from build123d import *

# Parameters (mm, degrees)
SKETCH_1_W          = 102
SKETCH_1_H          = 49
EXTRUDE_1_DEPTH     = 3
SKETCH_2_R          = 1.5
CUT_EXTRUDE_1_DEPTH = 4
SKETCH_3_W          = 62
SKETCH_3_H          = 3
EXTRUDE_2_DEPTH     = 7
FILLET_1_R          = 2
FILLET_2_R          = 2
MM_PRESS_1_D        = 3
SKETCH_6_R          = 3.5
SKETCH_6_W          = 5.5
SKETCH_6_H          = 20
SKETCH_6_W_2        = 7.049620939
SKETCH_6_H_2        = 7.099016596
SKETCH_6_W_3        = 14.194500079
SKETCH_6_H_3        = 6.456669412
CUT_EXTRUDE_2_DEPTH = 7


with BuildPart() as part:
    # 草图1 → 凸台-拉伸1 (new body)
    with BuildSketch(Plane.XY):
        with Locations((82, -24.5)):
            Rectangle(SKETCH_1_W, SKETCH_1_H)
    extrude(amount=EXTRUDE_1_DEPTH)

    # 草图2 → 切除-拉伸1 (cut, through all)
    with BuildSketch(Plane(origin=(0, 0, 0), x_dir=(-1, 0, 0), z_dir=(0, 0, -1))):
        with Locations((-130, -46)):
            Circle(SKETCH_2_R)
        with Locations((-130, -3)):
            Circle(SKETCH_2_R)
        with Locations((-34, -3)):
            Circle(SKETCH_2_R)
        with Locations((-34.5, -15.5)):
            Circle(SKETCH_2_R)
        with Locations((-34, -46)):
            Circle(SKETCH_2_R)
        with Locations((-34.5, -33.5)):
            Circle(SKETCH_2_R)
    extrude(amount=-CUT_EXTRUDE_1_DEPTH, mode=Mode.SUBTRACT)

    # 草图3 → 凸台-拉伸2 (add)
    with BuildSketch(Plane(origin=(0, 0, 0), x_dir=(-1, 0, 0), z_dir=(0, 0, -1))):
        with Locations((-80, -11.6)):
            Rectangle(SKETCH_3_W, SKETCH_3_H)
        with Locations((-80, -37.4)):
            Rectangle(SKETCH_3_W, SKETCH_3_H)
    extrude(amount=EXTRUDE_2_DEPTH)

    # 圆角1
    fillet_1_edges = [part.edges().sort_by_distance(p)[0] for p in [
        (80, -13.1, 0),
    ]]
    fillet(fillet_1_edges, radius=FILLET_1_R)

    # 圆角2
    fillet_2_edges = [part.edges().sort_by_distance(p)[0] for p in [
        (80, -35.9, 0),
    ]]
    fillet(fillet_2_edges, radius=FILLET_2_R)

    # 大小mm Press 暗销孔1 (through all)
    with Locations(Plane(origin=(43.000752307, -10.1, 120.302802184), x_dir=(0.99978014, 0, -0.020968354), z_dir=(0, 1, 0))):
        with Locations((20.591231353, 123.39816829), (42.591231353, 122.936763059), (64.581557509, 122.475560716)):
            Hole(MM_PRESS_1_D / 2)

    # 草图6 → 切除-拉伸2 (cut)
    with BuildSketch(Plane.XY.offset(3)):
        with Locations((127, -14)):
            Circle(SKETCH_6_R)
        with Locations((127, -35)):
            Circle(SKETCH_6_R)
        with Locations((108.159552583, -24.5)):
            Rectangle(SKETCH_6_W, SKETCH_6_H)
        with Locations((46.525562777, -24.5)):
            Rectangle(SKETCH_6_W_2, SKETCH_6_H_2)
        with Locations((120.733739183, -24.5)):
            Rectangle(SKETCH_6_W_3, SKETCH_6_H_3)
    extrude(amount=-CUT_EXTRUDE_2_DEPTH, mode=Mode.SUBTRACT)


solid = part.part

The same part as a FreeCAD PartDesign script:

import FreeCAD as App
import Part
import Sketcher
Q = App.Units.Quantity


def edges_at(feature, points):
    """Names of the edges that pass closest to the given points."""
    edges = feature.Shape.Edges
    near = lambda p: min(range(len(edges)), key=lambda i: edges[i].distToShape(Part.Vertex(*p))[0])
    return sorted({f"Edge{near(p) + 1}" for p in points})


def add_polygon(sketch, points):
    """Adds a closed chain of lines whose ends are joined by coincident constraints."""
    first, n = sketch.GeometryCount, len(points)
    for a, b in zip(points, points[1:] + points[:1]):
        sketch.addGeometry(Part.LineSegment(App.Vector(*a, 0), App.Vector(*b, 0)), False)
    for i in range(n):
        sketch.addConstraint(Sketcher.Constraint("Coincident", first + i, 2, first + (i + 1) % n, 1))

doc = App.newDocument("Part")
params = doc.addObject("Spreadsheet::Sheet", "Params")
for row, (alias, value) in enumerate([
    ("sketch1_width", "102 mm"),
    ("sketch1_height", "49 mm"),
    ("pad1_length", "3 mm"),
    ("sketch2_diameter", "3 mm"),
    ("sketch3_width", "62 mm"),
    ("sketch3_height", "3 mm"),
    ("pad2_length", "7 mm"),
    ("fillet_radius", "2 mm"),
    ("fillet2_radius", "2 mm"),
    ("sketch4_diameter", "3 mm"),
    ("hole_diameter", "3 mm"),
    ("sketch5_diameter", "7 mm"),
    ("sketch5_height", "20 mm"),
    ("sketch5_width", "5.5 mm"),
    ("pocket2_length", "7 mm"),
], start=1):
    params.set(f"A{row}", alias)
    params.set(f"B{row}", "=" + value)
    params.setAlias(f"B{row}", alias)

body = doc.addObject("PartDesign::Body", "Body")

sketch1 = doc.addObject("Sketcher::SketchObject", "Sketch")
body.addObject(sketch1)
sketch1.AttachmentSupport = (doc.XY_Plane, [""])
sketch1.MapMode = "FlatFace"
add_polygon(sketch1, [(31, 0), (31, -49), (133, -49), (133, 0)])
sketch1.addConstraint(Sketcher.Constraint("Vertical", 0))
sketch1.addConstraint(Sketcher.Constraint("Horizontal", 1))
sketch1.addConstraint(Sketcher.Constraint("Vertical", 2))
sketch1.addConstraint(Sketcher.Constraint("Horizontal", 3))
sketch1.addConstraint(Sketcher.Constraint("PointOnObject", 2, 2, -1))
sketch1.addConstraint(Sketcher.Constraint("DistanceX", 1, 1, 1, 2, Q("102 mm")))
sketch1.addConstraint(Sketcher.Constraint("DistanceY", 0, 2, 0, 1, Q("49 mm")))
sketch1.addConstraint(Sketcher.Constraint("DistanceX", -1, 1, 0, 2, Q("31 mm")))
sketch1.setExpression("Constraints[9]", "Params.sketch1_width")
sketch1.setExpression("Constraints[10]", "Params.sketch1_height")
pad1 = doc.addObject("PartDesign::Pad", "Pad")
body.addObject(pad1)
pad1.Profile = sketch1
pad1.setExpression("Length", "Params.pad1_length")

sketch2 = doc.addObject("Sketcher::SketchObject", "Sketch001")
body.addObject(sketch2)
sketch2.AttachmentSupport = (doc.XY_Plane, [""])
sketch2.MapMode = "FlatFace"
sketch2.addGeometry(Part.Circle(App.Vector(130, -46, 0), App.Vector(0, 0, 1), 1.5), False)
sketch2.addGeometry(Part.Circle(App.Vector(130, -3, 0), App.Vector(0, 0, 1), 1.5), False)
sketch2.addGeometry(Part.Circle(App.Vector(34, -3, 0), App.Vector(0, 0, 1), 1.5), False)
sketch2.addGeometry(Part.Circle(App.Vector(34.5, -15.5, 0), App.Vector(0, 0, 1), 1.5), False)
sketch2.addGeometry(Part.Circle(App.Vector(34, -46, 0), App.Vector(0, 0, 1), 1.5), False)
sketch2.addGeometry(Part.Circle(App.Vector(34.5, -33.5, 0), App.Vector(0, 0, 1), 1.5), False)
sketch2.addConstraint(Sketcher.Constraint("Equal", 0, 1))
sketch2.addConstraint(Sketcher.Constraint("Equal", 1, 2))
sketch2.addConstraint(Sketcher.Constraint("Equal", 2, 3))
sketch2.addConstraint(Sketcher.Constraint("Equal", 3, 4))
sketch2.addConstraint(Sketcher.Constraint("Equal", 4, 5))
sketch2.addConstraint(Sketcher.Constraint("Horizontal", 1, 3, 2, 3))
sketch2.addConstraint(Sketcher.Constraint("Horizontal", 0, 3, 4, 3))
sketch2.addConstraint(Sketcher.Constraint("Vertical", 0, 3, 1, 3))
sketch2.addConstraint(Sketcher.Constraint("Vertical", 2, 3, 4, 3))
sketch2.addConstraint(Sketcher.Constraint("Vertical", 3, 3, 5, 3))
sketch2.addConstraint(Sketcher.Constraint("Diameter", 0, Q("3 mm")))
sketch2.addConstraint(Sketcher.Constraint("DistanceX", -1, 1, 0, 3, Q("130 mm")))
sketch2.addConstraint(Sketcher.Constraint("DistanceY", 0, 3, -1, 1, Q("46 mm")))
sketch2.addConstraint(Sketcher.Constraint("DistanceY", 1, 3, -1, 1, Q("3 mm")))
sketch2.addConstraint(Sketcher.Constraint("DistanceX", -1, 1, 2, 3, Q("34 mm")))
sketch2.addConstraint(Sketcher.Constraint("DistanceY", 5, 3, 3, 3, Q("18 mm")))
sketch2.addConstraint(Sketcher.Constraint("DistanceX", -1, 1, 3, 3, Q("34.5 mm")))
sketch2.addConstraint(Sketcher.Constraint("DistanceY", 3, 3, -1, 1, Q("15.5 mm")))
sketch2.setExpression("Constraints[10]", "Params.sketch2_diameter")
pocket1 = doc.addObject("PartDesign::Pocket", "Pocket")
body.addObject(pocket1)
pocket1.Profile = sketch2
pocket1.Type = "ThroughAll"
pocket1.Reversed = True

sketch3 = doc.addObject("Sketcher::SketchObject", "Sketch002")
body.addObject(sketch3)
sketch3.AttachmentSupport = (doc.XY_Plane, [""])
sketch3.MapMode = "FlatFace"
add_polygon(sketch3, [(111, -10.1), (111, -13.1), (49, -13.1), (49, -10.1)])
add_polygon(sketch3, [(111, -35.9), (111, -38.9), (49, -38.9), (49, -35.9)])
sketch3.addConstraint(Sketcher.Constraint("Vertical", 0))
sketch3.addConstraint(Sketcher.Constraint("Horizontal", 1))
sketch3.addConstraint(Sketcher.Constraint("Vertical", 2))
sketch3.addConstraint(Sketcher.Constraint("Horizontal", 3))
sketch3.addConstraint(Sketcher.Constraint("Vertical", 4))
sketch3.addConstraint(Sketcher.Constraint("Horizontal", 5))
sketch3.addConstraint(Sketcher.Constraint("Vertical", 6))
sketch3.addConstraint(Sketcher.Constraint("Horizontal", 7))
sketch3.addConstraint(Sketcher.Constraint("Vertical", 3, 2, 4, 2))
sketch3.addConstraint(Sketcher.Constraint("Vertical", 2, 2, 5, 2))
sketch3.addConstraint(Sketcher.Constraint("Equal", 2, 4))
sketch3.addConstraint(Sketcher.Constraint("DistanceX", 1, 2, 1, 1, Q("62 mm")))
sketch3.addConstraint(Sketcher.Constraint("DistanceY", 0, 2, 0, 1, Q("3 mm")))
sketch3.addConstraint(Sketcher.Constraint("DistanceX", -1, 1, 0, 2, Q("111 mm")))
sketch3.addConstraint(Sketcher.Constraint("DistanceY", 0, 2, -1, 1, Q("13.1 mm")))
sketch3.addConstraint(Sketcher.Constraint("DistanceY", 4, 2, -1, 1, Q("38.9 mm")))
sketch3.setExpression("Constraints[19]", "Params.sketch3_width")
sketch3.setExpression("Constraints[20]", "Params.sketch3_height")
pad2 = doc.addObject("PartDesign::Pad", "Pad001")
body.addObject(pad2)
pad2.Profile = sketch3
pad2.setExpression("Length", "Params.pad2_length")
pad2.Reversed = True
doc.recompute()

fillet = doc.addObject("PartDesign::Fillet", "Fillet")
body.addObject(fillet)
fillet.Base = (pad2, edges_at(pad2, [(80, -13.1, 0)]))
fillet.setExpression("Radius", "Params.fillet_radius")
doc.recompute()

fillet2 = doc.addObject("PartDesign::Fillet", "Fillet001")
body.addObject(fillet2)
fillet2.Base = (fillet, edges_at(fillet, [(80, -35.9, 0)]))
fillet2.setExpression("Radius", "Params.fillet2_radius")

sketch4 = doc.addObject("Sketcher::SketchObject", "Sketch003")
body.addObject(sketch4)
sketch4.AttachmentSupport = (doc.XZ_Plane, [""])
sketch4.MapMode = "FlatFace"
sketch4.AttachmentOffset = App.Placement(App.Vector(0, 0, 10.1), App.Rotation())
sketch4.addGeometry(Part.Circle(App.Vector(61, -3.5, 0), App.Vector(0, 0, 1), 1.5), False)
sketch4.addGeometry(Part.Circle(App.Vector(83, -3.5, 0), App.Vector(0, 0, 1), 1.5), False)
sketch4.addGeometry(Part.Circle(App.Vector(105, -3.5, 0), App.Vector(0, 0, 1), 1.5), False)
sketch4.addConstraint(Sketcher.Constraint("Equal", 0, 1))
sketch4.addConstraint(Sketcher.Constraint("Equal", 1, 2))
sketch4.addConstraint(Sketcher.Constraint("Horizontal", 0, 3, 1, 3))
sketch4.addConstraint(Sketcher.Constraint("Horizontal", 1, 3, 2, 3))
sketch4.addConstraint(Sketcher.Constraint("Diameter", 0, Q("3 mm")))
sketch4.addConstraint(Sketcher.Constraint("DistanceX", -1, 1, 0, 3, Q("61 mm")))
sketch4.addConstraint(Sketcher.Constraint("DistanceX", -1, 1, 2, 3, Q("105 mm")))
sketch4.addConstraint(Sketcher.Constraint("DistanceY", 0, 3, -1, 1, Q("3.5 mm")))
sketch4.addConstraint(Sketcher.Constraint("DistanceX", -1, 1, 1, 3, Q("83.004838 mm")))
sketch4.setExpression("Constraints[4]", "Params.sketch4_diameter")
doc.recompute()
hole = doc.addObject("PartDesign::Hole", "Hole")
body.addObject(hole)
hole.Profile = sketch4
hole.ThreadType = "None"
hole.setExpression("Diameter", "Params.hole_diameter")
hole.DepthType = "ThroughAll"
hole.Reversed = True

sketch5 = doc.addObject("Sketcher::SketchObject", "Sketch004")
body.addObject(sketch5)
sketch5.AttachmentSupport = (doc.XY_Plane, [""])
sketch5.MapMode = "FlatFace"
sketch5.AttachmentOffset = App.Placement(App.Vector(0, 0, 3), App.Rotation())
sketch5.addGeometry(Part.Circle(App.Vector(127, -14, 0), App.Vector(0, 0, 1), 3.5), False)
sketch5.addGeometry(Part.Circle(App.Vector(127, -35, 0), App.Vector(0, 0, 1), 3.5), False)
add_polygon(sketch5, [(105.4, -14.5), (105.4, -34.5), (110.9, -34.5), (110.9, -14.5)])
add_polygon(sketch5, [(43, -21), (43, -28), (50.1, -28), (50.1, -21)])
add_polygon(sketch5, [(113.6, -21.3), (113.6, -27.7), (127.8, -27.7), (127.8, -21.3)])
sketch5.addConstraint(Sketcher.Constraint("Vertical", 2))
sketch5.addConstraint(Sketcher.Constraint("Horizontal", 3))
sketch5.addConstraint(Sketcher.Constraint("Vertical", 4))
sketch5.addConstraint(Sketcher.Constraint("Horizontal", 5))
sketch5.addConstraint(Sketcher.Constraint("Vertical", 6))
sketch5.addConstraint(Sketcher.Constraint("Horizontal", 7))
sketch5.addConstraint(Sketcher.Constraint("Vertical", 8))
sketch5.addConstraint(Sketcher.Constraint("Horizontal", 9))
sketch5.addConstraint(Sketcher.Constraint("Vertical", 10))
sketch5.addConstraint(Sketcher.Constraint("Horizontal", 11))
sketch5.addConstraint(Sketcher.Constraint("Vertical", 12))
sketch5.addConstraint(Sketcher.Constraint("Horizontal", 13))
sketch5.addConstraint(Sketcher.Constraint("Equal", 0, 1))
sketch5.addConstraint(Sketcher.Constraint("Vertical", 0, 3, 1, 3))
sketch5.addConstraint(Sketcher.Constraint("Diameter", 0, Q("7 mm")))
sketch5.addConstraint(Sketcher.Constraint("DistanceY", 2, 2, 2, 1, Q("20 mm")))
sketch5.addConstraint(Sketcher.Constraint("DistanceX", 3, 1, 3, 2, Q("5.5 mm")))
sketch5.addConstraint(Sketcher.Constraint("DistanceX", -1, 1, 0, 3, Q("127 mm")))
sketch5.addConstraint(Sketcher.Constraint("DistanceY", 0, 3, -1, 1, Q("14 mm")))
sketch5.addConstraint(Sketcher.Constraint("DistanceY", 1, 3, -1, 1, Q("35 mm")))
sketch5.addConstraint(Sketcher.Constraint("DistanceY", 2, 2, -1, 1, Q("34.5 mm")))
sketch5.addConstraint(Sketcher.Constraint("DistanceX", 11, 1, 11, 2, Q("14.1945 mm")))
sketch5.addConstraint(Sketcher.Constraint("DistanceX", 7, 1, 7, 2, Q("7.049621 mm")))
sketch5.addConstraint(Sketcher.Constraint("DistanceY", 10, 2, 10, 1, Q("6.456669 mm")))
sketch5.addConstraint(Sketcher.Constraint("DistanceX", 6, 2, 2, 2, Q("62.4088 mm")))
sketch5.addConstraint(Sketcher.Constraint("DistanceY", 6, 2, 6, 1, Q("7.099017 mm")))
sketch5.addConstraint(Sketcher.Constraint("DistanceY", 6, 2, -1, 1, Q("28.049508 mm")))
sketch5.addConstraint(Sketcher.Constraint("DistanceX", -1, 1, 10, 2, Q("113.636489 mm")))
sketch5.addConstraint(Sketcher.Constraint("DistanceX", -1, 1, 2, 2, Q("105.409553 mm")))
sketch5.addConstraint(Sketcher.Constraint("DistanceY", 10, 2, -1, 1, Q("27.728335 mm")))
sketch5.setExpression("Constraints[26]", "Params.sketch5_diameter")
sketch5.setExpression("Constraints[27]", "Params.sketch5_height")
sketch5.setExpression("Constraints[28]", "Params.sketch5_width")
pocket2 = doc.addObject("PartDesign::Pocket", "Pocket001")
body.addObject(pocket2)
pocket2.Profile = sketch5
pocket2.setExpression("Length", "Params.pocket2_length")

doc.recompute()
